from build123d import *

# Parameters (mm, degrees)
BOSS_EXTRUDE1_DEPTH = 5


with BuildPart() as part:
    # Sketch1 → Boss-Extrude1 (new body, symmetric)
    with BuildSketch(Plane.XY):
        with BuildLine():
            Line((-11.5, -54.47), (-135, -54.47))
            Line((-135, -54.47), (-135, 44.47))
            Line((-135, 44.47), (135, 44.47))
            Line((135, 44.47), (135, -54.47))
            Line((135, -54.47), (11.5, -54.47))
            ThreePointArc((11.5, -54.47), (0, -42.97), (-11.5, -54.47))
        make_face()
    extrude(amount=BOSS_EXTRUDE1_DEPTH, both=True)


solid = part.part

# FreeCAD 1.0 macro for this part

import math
import FreeCAD as App
import Part
import Sketcher

doc = App.newDocument("Part")
body = doc.addObject("PartDesign::Body", "Body")

# Sketch on XY plane
sketch1 = body.newObject("Sketcher::SketchObject", "Sketch")
sketch1.AttachmentSupport = (doc.getObject("XY_Plane"), [""])
sketch1.MapMode = "FlatFace"
sketch1.addGeometry(Part.LineSegment(App.Vector(-135, -54.47, 0), App.Vector(-11.5, -54.47, 0)), False)
sketch1.addGeometry(Part.ArcOfCircle(Part.Circle(App.Vector(0, -54.47, 0), App.Vector(0, 0, 1), 11.5), math.radians(0), math.radians(180)), False)
sketch1.addGeometry(Part.LineSegment(App.Vector(11.5, -54.47, 0), App.Vector(135, -54.47, 0)), False)
sketch1.addGeometry(Part.LineSegment(App.Vector(135, -54.47, 0), App.Vector(135, 44.47, 0)), False)
sketch1.addGeometry(Part.LineSegment(App.Vector(135, 44.47, 0), App.Vector(-135, 44.47, 0)), False)
sketch1.addGeometry(Part.LineSegment(App.Vector(-135, 44.47, 0), App.Vector(-135, -54.47, 0)), False)
sketch1.addConstraint(Sketcher.Constraint("Coincident", 0, 2, 1, 2))
sketch1.addConstraint(Sketcher.Constraint("Coincident", 1, 1, 2, 1))
sketch1.addConstraint(Sketcher.Constraint("Coincident", 2, 2, 3, 1))
sketch1.addConstraint(Sketcher.Constraint("Coincident", 3, 2, 4, 1))
sketch1.addConstraint(Sketcher.Constraint("Coincident", 4, 2, 5, 1))
sketch1.addConstraint(Sketcher.Constraint("Coincident", 5, 2, 0, 1))
sketch1.addConstraint(Sketcher.Constraint("Horizontal", 0))
sketch1.addConstraint(Sketcher.Constraint("Horizontal", 2))
sketch1.addConstraint(Sketcher.Constraint("Vertical", 3))
sketch1.addConstraint(Sketcher.Constraint("Horizontal", 4))
sketch1.addConstraint(Sketcher.Constraint("Vertical", 5))
sketch1.addConstraint(Sketcher.Constraint("Symmetric", 0, 2, 1, 1, -2))
sketch1.addConstraint(Sketcher.Constraint("Horizontal", 1, 3, 0, 2))
sketch1.addConstraint(Sketcher.Constraint("Equal", 0, 2))
sketch1.addConstraint(Sketcher.Constraint("Radius", 1, 11.5))
sketch1.addConstraint(Sketcher.Constraint("DistanceX", 4, 2, 4, 1, 270.0))
sketch1.addConstraint(Sketcher.Constraint("DistanceY", 3, 1, 3, 2, 98.94))
sketch1.addConstraint(Sketcher.Constraint("DistanceY", 1, 3, -1, 1, 54.47))
pad1 = body.newObject("PartDesign::Pad", "Pad")
pad1.Profile = sketch1
pad1.Length = 10
pad1.Midplane = True

doc.recompute()
